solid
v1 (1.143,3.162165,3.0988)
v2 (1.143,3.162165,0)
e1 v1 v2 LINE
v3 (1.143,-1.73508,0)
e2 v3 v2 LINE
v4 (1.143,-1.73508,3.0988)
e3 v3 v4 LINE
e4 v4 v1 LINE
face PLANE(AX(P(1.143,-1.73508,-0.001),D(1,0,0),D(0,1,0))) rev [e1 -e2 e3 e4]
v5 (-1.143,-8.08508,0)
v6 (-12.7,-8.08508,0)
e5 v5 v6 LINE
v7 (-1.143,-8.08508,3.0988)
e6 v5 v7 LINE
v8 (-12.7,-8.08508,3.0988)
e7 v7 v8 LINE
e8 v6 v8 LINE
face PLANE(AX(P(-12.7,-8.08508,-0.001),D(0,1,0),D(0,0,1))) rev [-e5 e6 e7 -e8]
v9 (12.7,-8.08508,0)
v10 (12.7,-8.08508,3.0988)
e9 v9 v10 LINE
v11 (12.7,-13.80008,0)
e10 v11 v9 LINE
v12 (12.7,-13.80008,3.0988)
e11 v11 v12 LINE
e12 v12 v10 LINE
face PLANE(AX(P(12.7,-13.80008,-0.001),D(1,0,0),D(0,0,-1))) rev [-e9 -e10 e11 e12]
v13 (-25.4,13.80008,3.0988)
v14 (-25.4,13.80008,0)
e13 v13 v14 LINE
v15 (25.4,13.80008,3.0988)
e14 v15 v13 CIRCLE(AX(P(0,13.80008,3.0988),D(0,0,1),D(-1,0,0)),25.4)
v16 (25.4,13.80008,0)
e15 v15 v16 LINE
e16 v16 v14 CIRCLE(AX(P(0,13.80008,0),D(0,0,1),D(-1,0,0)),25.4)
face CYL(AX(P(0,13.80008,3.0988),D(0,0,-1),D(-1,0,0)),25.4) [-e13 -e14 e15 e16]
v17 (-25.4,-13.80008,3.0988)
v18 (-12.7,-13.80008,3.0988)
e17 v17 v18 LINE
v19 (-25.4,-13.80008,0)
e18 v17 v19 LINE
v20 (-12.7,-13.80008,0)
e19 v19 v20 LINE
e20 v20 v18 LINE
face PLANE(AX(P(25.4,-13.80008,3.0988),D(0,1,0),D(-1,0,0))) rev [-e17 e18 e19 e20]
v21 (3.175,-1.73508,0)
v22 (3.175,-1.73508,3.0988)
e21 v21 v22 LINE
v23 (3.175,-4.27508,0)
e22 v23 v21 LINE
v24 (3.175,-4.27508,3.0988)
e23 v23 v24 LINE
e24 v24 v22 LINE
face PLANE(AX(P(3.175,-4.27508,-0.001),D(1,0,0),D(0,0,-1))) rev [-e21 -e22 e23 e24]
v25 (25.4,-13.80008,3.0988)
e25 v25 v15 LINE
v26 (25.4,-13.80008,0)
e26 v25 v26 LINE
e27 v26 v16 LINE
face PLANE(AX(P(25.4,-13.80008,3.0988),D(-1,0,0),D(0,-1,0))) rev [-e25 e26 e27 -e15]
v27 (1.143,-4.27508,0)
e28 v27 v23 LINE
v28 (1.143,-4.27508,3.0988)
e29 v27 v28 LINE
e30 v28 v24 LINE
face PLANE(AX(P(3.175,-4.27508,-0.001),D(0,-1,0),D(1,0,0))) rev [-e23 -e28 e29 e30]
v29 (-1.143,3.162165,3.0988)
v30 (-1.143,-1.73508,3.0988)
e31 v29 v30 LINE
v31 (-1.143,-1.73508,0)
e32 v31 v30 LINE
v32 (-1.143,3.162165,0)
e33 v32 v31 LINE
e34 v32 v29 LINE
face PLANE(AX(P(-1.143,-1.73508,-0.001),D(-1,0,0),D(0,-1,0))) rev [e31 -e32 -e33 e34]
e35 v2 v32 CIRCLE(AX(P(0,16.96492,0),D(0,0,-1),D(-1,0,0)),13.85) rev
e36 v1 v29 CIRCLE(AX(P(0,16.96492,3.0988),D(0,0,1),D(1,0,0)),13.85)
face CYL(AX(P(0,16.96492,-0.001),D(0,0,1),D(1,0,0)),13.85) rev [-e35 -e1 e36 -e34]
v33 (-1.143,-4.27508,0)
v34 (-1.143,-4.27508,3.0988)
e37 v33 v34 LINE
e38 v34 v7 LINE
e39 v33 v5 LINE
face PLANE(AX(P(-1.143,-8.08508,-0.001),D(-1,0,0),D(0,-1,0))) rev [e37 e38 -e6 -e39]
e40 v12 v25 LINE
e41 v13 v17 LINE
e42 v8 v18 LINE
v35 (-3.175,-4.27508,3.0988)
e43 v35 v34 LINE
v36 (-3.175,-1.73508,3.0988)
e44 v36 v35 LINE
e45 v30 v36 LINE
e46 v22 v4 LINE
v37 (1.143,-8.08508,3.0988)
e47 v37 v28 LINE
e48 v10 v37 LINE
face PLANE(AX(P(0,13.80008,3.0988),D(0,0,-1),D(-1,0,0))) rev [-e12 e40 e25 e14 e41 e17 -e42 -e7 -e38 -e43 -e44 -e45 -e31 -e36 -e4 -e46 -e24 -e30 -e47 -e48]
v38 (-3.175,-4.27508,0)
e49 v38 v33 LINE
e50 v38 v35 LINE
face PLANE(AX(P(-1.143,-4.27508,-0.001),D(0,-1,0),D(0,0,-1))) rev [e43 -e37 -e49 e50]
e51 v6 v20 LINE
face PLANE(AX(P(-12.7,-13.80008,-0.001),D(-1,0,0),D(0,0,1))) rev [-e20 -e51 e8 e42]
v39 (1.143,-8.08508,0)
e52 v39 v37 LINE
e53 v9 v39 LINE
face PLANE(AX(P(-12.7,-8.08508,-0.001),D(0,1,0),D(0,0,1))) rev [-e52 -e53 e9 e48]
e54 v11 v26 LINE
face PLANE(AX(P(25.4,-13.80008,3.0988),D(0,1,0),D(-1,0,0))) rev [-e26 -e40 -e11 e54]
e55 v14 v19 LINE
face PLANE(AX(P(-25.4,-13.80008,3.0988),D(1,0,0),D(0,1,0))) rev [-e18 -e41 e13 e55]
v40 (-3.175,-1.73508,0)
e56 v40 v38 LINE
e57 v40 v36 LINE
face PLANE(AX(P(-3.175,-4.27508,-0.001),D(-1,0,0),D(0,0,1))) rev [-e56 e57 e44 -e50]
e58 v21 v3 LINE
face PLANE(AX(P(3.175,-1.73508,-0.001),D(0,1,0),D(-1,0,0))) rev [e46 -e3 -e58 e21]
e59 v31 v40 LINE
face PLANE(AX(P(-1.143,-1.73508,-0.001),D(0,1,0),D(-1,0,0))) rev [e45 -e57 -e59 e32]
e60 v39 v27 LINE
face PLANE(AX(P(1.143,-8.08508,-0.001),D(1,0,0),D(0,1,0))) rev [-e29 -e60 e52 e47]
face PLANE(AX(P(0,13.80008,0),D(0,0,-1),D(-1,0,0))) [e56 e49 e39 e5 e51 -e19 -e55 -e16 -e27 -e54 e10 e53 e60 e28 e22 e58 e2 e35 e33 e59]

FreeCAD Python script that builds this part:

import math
import FreeCAD as App
import Part
import Sketcher

V = App.Vector
Q = App.Units.Quantity


def add_polygon(sketch, points):
    """Adds a closed chain of lines whose ends are joined by coincident constraints."""
    first, n = sketch.GeometryCount, len(points)
    for a, b in zip(points, points[1:] + points[:1]):
        sketch.addGeometry(Part.LineSegment(App.Vector(*a, 0), App.Vector(*b, 0)), False)
    for i in range(n):
        sketch.addConstraint(Sketcher.Constraint("Coincident", first + i, 2, first + (i + 1) % n, 1))

doc = App.newDocument("Part")
body = doc.addObject("PartDesign::Body", "Body")

# Sketch on XY plane
sketch1 = body.newObject("Sketcher::SketchObject", "Sketch")
sketch1.AttachmentSupport = (doc.getObject("XY_Plane"), [""])
sketch1.MapMode = "FlatFace"
sketch1.addGeometry([
    Part.LineSegment(V(-25, -14, 0), V(25, -14, 0)),
    Part.LineSegment(V(25, -14, 0), V(25, 14, 0)),
    Part.ArcOfCircle(Part.Circle(V(0, 14, 0), V(0, 0, 1), 25), math.radians(0), math.radians(180)),
    Part.LineSegment(V(-25, 14, 0), V(-25, -14, 0)),
], False)
sketch1.addConstraint([
    Sketcher.Constraint("Coincident", 0, 2, 1, 1),
    Sketcher.Constraint("Tangent", 1, 2, 2, 1),
    Sketcher.Constraint("Tangent", 2, 2, 3, 1),
    Sketcher.Constraint("Coincident", 3, 2, 0, 1),
    Sketcher.Constraint("Horizontal", 0),
    Sketcher.Constraint("Vertical", 1),
    Sketcher.Constraint("Vertical", 3),
    Sketcher.Constraint("Symmetric", 0, 2, 2, 2, -1, 1),
    Sketcher.Constraint("Radius", 2, Q("1 in")),
    Sketcher.Constraint("DistanceY", 1, 1, 1, 2, Q("27.60016 mm")),
])
pad1 = body.newObject("PartDesign::Pad", "Pad")
pad1.Profile = sketch1
pad1.Length = Q("0.122 in")

# Sketch on XY plane
sketch2 = body.newObject("Sketcher::SketchObject", "Sketch001")
sketch2.AttachmentSupport = (doc.getObject("XY_Plane"), [""])
sketch2.MapMode = "FlatFace"
sketch2.AttachmentOffset = App.Placement(V(0, 0, 0.122 * 25.4), App.Rotation())
sketch2.addGeometry(Part.Circle(V(0, 17, 0), V(0, 0, 1), 14), False)
sketch2.addConstraint([
    Sketcher.Constraint("PointOnObject", 0, 3, -2),
    Sketcher.Constraint("Diameter", 0, Q("27.7 mm")),
    Sketcher.Constraint("DistanceY", -1, 1, 0, 3, Q("16.96492 mm")),
])
pocket1 = body.newObject("PartDesign::Pocket", "Pocket")
pocket1.Profile = sketch2
pocket1.Type = "UpToFirst"

# Sketch on XY plane
sketch3 = body.newObject("Sketcher::SketchObject", "Sketch002")
sketch3.AttachmentSupport = (doc.getObject("XY_Plane"), [""])
sketch3.MapMode = "FlatFace"
sketch3.AttachmentOffset = App.Placement(V(0, 0, 0.122 * 25.4), App.Rotation())
add_polygon(sketch3, [(-13, -8), (-13, -14), (13, -14), (13, -8)])  # lines 0-3
sketch3.addConstraint([
    Sketcher.Constraint("Vertical", 0),
    Sketcher.Constraint("Horizontal", 1),
    Sketcher.Constraint("Vertical", 2),
    Sketcher.Constraint("Horizontal", 3),
    Sketcher.Constraint("DistanceX", 1, 1, 1, 2, Q("1 in")),
    Sketcher.Constraint("DistanceX", 0, 2, -1, 1, Q("0.5 in")),
    Sketcher.Constraint("DistanceY", 0, 2, 0, 1, Q("0.225 in")),
    Sketcher.Constraint("DistanceY", 0, 2, -1, 1, Q("13.80008 mm")),
])
pocket2 = body.newObject("PartDesign::Pocket", "Pocket001")
pocket2.Profile = sketch3
pocket2.Type = "UpToFirst"

# Sketch on XY plane
sketch4 = body.newObject("Sketcher::SketchObject", "Sketch003")
sketch4.AttachmentSupport = (doc.getObject("XY_Plane"), [""])
sketch4.MapMode = "FlatFace"
sketch4.AttachmentOffset = App.Placement(V(0, 0, 0.122 * 25.4), App.Rotation())
add_polygon(sketch4, [(1.1, -4.3), (3.2, -4.3), (3.2, -1.7), (1.1, -1.7), (1.1, 5.9), (-1.1, 5.9), (-1.1, -1.7), (-3.2, -1.7), (-3.2, -4.3), (-1.1, -4.3), (-1.1, -8.1), (1.1, -8.1)])  # lines 0-11
sketch4.addConstraint([
    Sketcher.Constraint("Horizontal", 0),
    Sketcher.Constraint("Vertical", 1),
    Sketcher.Constraint("Horizontal", 2),
    Sketcher.Constraint("Vertical", 3),
    Sketcher.Constraint("Horizontal", 4),
    Sketcher.Constraint("Vertical", 5),
    Sketcher.Constraint("Horizontal", 6),
    Sketcher.Constraint("Vertical", 7),
    Sketcher.Constraint("Horizontal", 8),
    Sketcher.Constraint("Vertical", 9),
    Sketcher.Constraint("Horizontal", 10),
    Sketcher.Constraint("Vertical", 11),
    Sketcher.Constraint("Symmetric", 2, 2, 5, 2, -2),
    Sketcher.Constraint("Symmetric", 0, 2, 7, 2, -2),
    Sketcher.Constraint("Vertical", 5, 2, 8, 2),
    Sketcher.Constraint("Vertical", 3, 2, 10, 2),
    Sketcher.Constraint("DistanceY", 1, 1, 1, 2, Q("0.1 in")),
    Sketcher.Constraint("DistanceY", 3, 1, 3, 2, Q("0.3 in")),
    Sketcher.Constraint("DistanceX", 0, 1, 0, 2, Q("0.08 in")),
    Sketcher.Constraint("DistanceX", 4, 2, 4, 1, Q("0.09 in")),
    Sketcher.Constraint("DistanceY", 9, 2, 9, 1, Q("0.15 in")),
    Sketcher.Constraint("DistanceY", 0, 2, -1, 1, Q("4.27508 mm")),
])
pocket3 = body.newObject("PartDesign::Pocket", "Pocket002")
pocket3.Profile = sketch4
pocket3.Type = "UpToFirst"

doc.recompute()
